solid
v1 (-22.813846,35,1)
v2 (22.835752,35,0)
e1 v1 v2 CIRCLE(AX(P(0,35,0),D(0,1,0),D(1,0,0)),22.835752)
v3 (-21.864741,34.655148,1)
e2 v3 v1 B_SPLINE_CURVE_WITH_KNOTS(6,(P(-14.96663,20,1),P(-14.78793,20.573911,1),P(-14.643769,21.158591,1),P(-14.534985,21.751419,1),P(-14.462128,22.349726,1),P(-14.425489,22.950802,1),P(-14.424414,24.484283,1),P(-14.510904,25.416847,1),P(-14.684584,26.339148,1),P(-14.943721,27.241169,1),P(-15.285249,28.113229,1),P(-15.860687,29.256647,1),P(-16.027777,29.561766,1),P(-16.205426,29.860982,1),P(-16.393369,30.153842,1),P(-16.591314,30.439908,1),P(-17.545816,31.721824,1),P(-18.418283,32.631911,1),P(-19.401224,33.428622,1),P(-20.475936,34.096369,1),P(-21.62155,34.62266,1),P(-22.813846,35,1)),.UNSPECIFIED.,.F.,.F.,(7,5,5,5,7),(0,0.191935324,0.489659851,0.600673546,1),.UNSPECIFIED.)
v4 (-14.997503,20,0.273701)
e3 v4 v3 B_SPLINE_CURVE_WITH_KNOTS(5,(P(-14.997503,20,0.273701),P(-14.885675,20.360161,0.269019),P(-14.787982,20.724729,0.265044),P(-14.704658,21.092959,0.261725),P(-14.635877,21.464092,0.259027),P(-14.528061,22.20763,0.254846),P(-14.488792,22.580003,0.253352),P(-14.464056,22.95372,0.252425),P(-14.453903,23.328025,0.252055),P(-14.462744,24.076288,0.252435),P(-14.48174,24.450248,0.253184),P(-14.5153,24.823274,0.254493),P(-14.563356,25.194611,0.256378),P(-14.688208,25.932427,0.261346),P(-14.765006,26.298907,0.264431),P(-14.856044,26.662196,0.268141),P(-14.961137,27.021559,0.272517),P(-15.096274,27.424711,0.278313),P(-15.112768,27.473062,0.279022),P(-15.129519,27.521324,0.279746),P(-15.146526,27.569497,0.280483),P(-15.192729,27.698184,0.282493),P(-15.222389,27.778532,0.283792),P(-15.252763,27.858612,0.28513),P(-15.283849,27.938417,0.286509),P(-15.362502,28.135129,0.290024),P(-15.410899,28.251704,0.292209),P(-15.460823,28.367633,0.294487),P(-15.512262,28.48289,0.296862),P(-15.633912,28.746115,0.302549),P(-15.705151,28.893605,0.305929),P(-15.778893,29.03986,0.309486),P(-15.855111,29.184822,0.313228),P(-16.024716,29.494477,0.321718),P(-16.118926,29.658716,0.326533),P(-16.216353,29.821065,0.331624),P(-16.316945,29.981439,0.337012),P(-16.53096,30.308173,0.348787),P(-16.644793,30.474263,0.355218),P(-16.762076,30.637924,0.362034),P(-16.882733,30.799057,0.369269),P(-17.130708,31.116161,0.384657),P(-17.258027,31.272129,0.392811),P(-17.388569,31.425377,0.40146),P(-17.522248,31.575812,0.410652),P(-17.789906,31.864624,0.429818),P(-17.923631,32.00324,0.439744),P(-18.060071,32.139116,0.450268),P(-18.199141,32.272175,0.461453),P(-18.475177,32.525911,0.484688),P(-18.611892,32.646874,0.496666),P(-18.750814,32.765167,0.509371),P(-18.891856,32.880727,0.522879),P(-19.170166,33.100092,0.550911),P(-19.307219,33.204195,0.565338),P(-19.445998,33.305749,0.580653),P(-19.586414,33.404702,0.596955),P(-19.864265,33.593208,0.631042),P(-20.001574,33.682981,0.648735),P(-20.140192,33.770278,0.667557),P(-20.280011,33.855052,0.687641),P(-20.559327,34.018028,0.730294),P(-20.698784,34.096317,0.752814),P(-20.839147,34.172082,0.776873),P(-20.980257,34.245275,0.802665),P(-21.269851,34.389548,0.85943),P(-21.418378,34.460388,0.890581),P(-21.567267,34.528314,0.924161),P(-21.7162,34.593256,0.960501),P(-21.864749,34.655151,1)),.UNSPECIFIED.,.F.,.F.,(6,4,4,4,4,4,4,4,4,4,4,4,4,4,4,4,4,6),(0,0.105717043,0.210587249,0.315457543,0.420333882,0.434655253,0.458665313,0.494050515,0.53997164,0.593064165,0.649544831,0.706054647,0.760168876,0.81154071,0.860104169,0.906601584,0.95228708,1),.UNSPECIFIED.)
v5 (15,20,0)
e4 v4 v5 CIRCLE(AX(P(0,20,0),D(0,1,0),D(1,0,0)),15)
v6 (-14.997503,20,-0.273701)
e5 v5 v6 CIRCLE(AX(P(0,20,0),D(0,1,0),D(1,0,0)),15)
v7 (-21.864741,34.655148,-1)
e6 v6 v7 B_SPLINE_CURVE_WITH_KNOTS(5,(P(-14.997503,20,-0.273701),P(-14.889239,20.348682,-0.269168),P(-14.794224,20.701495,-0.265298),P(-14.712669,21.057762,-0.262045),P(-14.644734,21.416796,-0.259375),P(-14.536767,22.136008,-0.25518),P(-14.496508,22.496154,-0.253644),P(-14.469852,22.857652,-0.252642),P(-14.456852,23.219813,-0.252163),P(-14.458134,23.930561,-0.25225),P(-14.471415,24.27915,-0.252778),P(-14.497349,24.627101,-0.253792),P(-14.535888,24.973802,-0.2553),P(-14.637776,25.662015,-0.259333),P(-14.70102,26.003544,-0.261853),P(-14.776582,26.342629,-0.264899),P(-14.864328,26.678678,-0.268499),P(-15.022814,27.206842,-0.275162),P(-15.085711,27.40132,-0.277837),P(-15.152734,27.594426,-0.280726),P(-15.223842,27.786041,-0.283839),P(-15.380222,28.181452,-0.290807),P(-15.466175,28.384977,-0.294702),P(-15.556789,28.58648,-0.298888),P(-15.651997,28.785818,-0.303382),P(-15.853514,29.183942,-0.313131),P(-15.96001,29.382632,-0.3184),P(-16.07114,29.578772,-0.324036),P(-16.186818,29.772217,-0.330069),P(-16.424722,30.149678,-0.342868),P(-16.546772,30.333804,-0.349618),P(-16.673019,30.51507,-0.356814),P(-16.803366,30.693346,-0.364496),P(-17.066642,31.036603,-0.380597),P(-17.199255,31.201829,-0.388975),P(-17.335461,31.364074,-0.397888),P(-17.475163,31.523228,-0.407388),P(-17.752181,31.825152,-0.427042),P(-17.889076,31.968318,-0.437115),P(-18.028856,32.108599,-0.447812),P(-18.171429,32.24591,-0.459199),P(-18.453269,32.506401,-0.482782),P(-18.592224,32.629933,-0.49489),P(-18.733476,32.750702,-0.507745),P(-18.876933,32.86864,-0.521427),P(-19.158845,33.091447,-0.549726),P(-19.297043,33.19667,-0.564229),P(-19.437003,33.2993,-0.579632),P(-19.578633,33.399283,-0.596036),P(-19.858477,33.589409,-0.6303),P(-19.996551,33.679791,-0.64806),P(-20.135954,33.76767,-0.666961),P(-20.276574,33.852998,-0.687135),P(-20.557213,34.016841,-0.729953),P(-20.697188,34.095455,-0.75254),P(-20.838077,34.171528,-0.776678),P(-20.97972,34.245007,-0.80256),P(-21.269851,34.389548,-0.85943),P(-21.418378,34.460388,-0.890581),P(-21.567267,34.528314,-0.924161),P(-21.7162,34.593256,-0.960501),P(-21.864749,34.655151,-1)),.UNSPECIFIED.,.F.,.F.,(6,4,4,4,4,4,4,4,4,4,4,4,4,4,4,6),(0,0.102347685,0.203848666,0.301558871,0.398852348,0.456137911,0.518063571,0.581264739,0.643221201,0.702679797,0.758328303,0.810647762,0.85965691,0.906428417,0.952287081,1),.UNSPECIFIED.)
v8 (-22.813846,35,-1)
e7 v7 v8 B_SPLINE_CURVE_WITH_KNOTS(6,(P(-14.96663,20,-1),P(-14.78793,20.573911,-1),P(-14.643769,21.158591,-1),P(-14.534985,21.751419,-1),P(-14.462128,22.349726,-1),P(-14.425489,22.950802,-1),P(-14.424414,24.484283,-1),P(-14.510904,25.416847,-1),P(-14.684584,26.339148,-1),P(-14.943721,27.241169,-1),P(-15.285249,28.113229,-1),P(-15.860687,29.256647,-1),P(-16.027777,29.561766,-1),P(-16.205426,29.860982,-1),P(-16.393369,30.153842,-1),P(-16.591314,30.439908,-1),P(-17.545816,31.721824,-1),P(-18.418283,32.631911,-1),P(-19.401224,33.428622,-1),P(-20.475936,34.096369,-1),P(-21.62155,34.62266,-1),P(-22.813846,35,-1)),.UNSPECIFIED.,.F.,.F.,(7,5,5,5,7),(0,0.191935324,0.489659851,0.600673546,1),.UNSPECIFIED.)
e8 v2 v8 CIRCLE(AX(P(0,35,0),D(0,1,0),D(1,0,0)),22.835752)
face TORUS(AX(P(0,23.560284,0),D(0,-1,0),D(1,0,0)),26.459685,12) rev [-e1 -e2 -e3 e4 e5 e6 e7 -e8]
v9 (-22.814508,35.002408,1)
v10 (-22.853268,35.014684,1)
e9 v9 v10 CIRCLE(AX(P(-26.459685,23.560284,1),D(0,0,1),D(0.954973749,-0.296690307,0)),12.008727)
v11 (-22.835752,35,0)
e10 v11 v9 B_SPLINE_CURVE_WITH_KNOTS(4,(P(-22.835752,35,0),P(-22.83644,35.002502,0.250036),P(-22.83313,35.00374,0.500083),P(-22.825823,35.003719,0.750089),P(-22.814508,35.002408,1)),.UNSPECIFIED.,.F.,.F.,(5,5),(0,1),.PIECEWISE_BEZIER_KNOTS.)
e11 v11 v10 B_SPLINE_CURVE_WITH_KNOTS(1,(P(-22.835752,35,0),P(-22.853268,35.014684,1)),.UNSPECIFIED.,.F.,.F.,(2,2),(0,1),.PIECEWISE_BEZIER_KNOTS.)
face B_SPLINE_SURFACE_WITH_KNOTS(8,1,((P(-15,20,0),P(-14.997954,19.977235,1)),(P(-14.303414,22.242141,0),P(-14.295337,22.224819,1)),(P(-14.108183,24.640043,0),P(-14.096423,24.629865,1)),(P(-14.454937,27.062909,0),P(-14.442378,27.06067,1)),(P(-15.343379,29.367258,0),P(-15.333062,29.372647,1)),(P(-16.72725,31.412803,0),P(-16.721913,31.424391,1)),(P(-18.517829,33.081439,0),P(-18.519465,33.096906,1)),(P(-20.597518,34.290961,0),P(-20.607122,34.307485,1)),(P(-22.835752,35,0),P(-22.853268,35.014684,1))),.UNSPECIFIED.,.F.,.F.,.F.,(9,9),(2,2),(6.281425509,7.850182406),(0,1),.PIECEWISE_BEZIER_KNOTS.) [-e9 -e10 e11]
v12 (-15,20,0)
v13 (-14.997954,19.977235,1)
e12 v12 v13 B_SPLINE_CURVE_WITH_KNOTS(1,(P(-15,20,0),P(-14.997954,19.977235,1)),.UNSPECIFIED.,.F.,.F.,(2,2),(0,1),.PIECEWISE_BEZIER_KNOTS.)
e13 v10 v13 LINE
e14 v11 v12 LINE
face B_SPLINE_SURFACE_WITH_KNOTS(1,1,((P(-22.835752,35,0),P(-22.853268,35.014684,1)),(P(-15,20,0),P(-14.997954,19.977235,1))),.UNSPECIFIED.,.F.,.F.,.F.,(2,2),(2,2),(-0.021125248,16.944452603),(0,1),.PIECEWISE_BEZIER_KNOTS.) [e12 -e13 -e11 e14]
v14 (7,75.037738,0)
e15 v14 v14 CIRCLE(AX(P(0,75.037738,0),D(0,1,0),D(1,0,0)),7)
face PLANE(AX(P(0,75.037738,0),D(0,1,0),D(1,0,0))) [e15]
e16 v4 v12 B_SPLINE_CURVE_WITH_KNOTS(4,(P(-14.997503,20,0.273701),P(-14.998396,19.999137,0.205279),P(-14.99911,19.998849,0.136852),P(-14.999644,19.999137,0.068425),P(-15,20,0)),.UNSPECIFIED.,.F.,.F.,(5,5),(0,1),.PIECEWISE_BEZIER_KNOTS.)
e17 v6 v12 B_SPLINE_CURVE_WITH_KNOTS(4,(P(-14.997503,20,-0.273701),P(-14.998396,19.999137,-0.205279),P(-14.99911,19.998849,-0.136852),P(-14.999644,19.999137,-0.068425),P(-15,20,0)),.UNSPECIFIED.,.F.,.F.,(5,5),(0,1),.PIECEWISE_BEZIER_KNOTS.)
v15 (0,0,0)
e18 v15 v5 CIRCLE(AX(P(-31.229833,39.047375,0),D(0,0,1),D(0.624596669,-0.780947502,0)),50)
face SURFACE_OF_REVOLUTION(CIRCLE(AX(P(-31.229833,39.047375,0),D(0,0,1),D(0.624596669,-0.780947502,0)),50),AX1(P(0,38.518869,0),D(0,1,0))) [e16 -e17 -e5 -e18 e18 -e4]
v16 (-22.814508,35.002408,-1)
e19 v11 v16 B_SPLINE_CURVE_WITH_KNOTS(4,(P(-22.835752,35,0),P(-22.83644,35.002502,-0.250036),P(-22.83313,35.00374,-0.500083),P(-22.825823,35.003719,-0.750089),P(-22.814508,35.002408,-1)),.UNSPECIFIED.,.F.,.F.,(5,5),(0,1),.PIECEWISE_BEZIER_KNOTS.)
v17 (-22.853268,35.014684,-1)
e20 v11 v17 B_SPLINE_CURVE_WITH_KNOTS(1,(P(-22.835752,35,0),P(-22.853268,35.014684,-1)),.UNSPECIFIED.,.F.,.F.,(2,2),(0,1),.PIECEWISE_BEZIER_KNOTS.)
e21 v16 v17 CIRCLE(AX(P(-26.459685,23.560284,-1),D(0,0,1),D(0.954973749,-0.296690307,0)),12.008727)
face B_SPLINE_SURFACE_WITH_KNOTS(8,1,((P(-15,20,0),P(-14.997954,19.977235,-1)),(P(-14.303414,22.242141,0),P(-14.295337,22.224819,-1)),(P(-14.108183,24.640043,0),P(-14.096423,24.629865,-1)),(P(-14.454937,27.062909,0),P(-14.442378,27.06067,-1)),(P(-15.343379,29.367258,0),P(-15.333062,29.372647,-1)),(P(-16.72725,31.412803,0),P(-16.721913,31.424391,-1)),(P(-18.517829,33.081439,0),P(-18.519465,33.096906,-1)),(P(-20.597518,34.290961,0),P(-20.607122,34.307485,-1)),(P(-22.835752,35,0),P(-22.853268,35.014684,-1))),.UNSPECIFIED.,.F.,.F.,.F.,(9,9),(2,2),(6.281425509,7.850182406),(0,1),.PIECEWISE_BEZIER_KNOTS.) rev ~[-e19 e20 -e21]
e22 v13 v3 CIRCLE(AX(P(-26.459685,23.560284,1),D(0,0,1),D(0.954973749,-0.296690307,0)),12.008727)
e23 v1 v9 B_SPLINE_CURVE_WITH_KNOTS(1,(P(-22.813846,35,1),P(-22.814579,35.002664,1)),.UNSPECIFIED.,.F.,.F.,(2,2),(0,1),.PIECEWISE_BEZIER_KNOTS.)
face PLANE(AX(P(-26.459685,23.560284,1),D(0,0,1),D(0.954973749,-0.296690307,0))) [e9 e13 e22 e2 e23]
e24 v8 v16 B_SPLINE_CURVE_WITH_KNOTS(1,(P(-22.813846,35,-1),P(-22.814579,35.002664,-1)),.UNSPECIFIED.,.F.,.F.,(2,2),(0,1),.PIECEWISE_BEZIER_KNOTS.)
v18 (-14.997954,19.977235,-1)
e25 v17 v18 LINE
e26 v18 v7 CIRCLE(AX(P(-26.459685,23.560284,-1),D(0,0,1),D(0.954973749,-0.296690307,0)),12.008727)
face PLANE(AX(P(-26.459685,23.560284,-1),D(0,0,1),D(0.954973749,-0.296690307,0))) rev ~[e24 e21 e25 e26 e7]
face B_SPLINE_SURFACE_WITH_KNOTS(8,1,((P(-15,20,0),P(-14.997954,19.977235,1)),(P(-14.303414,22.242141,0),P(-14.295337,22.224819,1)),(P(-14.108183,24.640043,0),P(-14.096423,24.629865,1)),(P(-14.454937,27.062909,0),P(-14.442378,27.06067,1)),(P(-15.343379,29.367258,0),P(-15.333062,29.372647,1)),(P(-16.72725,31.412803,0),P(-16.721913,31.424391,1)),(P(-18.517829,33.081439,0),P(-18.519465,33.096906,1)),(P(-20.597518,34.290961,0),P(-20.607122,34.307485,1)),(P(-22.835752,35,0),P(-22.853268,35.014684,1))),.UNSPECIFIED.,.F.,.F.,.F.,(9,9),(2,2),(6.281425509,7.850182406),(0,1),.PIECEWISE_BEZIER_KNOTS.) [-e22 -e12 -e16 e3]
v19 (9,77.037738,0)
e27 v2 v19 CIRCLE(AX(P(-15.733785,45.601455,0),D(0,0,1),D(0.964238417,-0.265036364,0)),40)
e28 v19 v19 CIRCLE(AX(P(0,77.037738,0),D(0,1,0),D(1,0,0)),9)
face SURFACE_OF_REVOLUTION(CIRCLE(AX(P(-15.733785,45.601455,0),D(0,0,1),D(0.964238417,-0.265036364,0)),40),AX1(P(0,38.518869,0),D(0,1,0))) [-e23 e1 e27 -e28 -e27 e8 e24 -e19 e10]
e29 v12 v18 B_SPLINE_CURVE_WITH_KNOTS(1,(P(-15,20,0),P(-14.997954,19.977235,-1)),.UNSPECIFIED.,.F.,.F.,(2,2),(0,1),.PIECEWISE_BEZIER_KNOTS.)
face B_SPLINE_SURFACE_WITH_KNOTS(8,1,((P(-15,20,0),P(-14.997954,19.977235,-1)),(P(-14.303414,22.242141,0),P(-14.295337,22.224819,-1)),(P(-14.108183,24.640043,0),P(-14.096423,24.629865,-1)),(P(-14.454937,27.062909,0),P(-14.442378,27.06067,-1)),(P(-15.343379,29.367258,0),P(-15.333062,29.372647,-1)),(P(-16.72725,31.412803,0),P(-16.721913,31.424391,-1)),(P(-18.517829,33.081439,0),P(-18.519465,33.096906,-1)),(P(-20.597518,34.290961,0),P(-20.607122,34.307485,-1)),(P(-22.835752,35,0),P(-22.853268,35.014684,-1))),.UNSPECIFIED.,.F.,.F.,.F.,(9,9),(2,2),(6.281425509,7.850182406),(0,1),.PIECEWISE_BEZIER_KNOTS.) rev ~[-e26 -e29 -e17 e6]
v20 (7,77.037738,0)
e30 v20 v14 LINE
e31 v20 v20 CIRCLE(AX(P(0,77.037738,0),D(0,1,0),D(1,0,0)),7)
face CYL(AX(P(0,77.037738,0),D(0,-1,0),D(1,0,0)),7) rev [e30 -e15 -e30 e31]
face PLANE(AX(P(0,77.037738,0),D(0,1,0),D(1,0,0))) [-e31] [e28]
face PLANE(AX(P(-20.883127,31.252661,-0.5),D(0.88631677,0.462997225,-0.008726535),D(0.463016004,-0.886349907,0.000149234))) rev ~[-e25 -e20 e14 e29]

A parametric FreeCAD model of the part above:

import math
import FreeCAD as App
import Part
import Sketcher

doc = App.newDocument("Part")
body = doc.addObject("PartDesign::Body", "Body")

# Sketch on XY plane
sketch1 = doc.addObject("Sketcher::SketchObject", "Sketch")
body.addObject(sketch1)
sketch1.AttachmentSupport = (doc.XY_Plane, [""])
sketch1.MapMode = "FlatFace"
sketch1.addGeometry(Part.ArcOfCircle(Part.Circle(App.Vector(-31.229833, 39.047375, 0), App.Vector(0, 0, 1), 50), math.radians(-51.34741), math.radians(-22.392385)), False)
sketch1.addGeometry(Part.ArcOfCircle(Part.Circle(App.Vector(26.459685, 23.560284, 0), App.Vector(0, 0, 1), 12), math.radians(107.577432), math.radians(197.258923)), False)
sketch1.addGeometry(Part.ArcOfCircle(Part.Circle(App.Vector(-15.733785, 45.601455, 0), App.Vector(0, 0, 1), 40), math.radians(-15.369114), math.radians(51.80465)), False)
sketch1.addGeometry(Part.LineSegment(App.Vector(9, 77.037738, 0), App.Vector(7, 77.037738, 0)), False)
sketch1.addGeometry(Part.LineSegment(App.Vector(7, 77.037738, 0), App.Vector(7, 75.037738, 0)), False)
sketch1.addGeometry(Part.LineSegment(App.Vector(7, 75.037738, 0), App.Vector(0, 75.037738, 0)), False)
sketch1.addGeometry(Part.LineSegment(App.Vector(0, 75.037738, 0), App.Vector(0, 0, 0)), False)
sketch1.addConstraint(Sketcher.Constraint("Coincident", 0, 2, 1, 2))
sketch1.addConstraint(Sketcher.Constraint("Coincident", 1, 1, 2, 1))
sketch1.addConstraint(Sketcher.Constraint("Coincident", 2, 2, 3, 1))
sketch1.addConstraint(Sketcher.Constraint("Coincident", 3, 2, 4, 1))
sketch1.addConstraint(Sketcher.Constraint("Coincident", 4, 2, 5, 1))
sketch1.addConstraint(Sketcher.Constraint("Coincident", 5, 2, 6, 1))
sketch1.addConstraint(Sketcher.Constraint("Coincident", 6, 2, 0, 1))
sketch1.addConstraint(Sketcher.Constraint("Horizontal", 3))
sketch1.addConstraint(Sketcher.Constraint("Vertical", 4))
sketch1.addConstraint(Sketcher.Constraint("Horizontal", 5))
sketch1.addConstraint(Sketcher.Constraint("Vertical", 6))
sketch1.addConstraint(Sketcher.Constraint("Coincident", 6, 2, -1, 1))
sketch1.addConstraint(Sketcher.Constraint("Equal", 3, 4))
sketch1.addConstraint(Sketcher.Constraint("Radius", 0, 50.0))
sketch1.addConstraint(Sketcher.Constraint("Radius", 1, 12.0))
sketch1.addConstraint(Sketcher.Constraint("Radius", 2, 40.0))
sketch1.addConstraint(Sketcher.Constraint("DistanceX", 3, 2, 3, 1, 2.0))
sketch1.addConstraint(Sketcher.Constraint("DistanceX", 5, 2, 5, 1, 7.0))
sketch1.addConstraint(Sketcher.Constraint("DistanceX", -1, 1, 0, 2, 15.0))
sketch1.addConstraint(Sketcher.Constraint("DistanceY", -1, 1, 0, 2, 20.0))
sketch1.addConstraint(Sketcher.Constraint("DistanceY", -1, 1, 1, 1, 35.0))
sketch1.addConstraint(Sketcher.Constraint("DistanceY", 6, 2, 6, 1, 75.037738))
sketch1.addConstraint(Sketcher.Constraint("DistanceX", -1, 1, 1, 1, 22.835752))
revolution = doc.addObject("PartDesign::Revolution", "Revolution")
body.addObject(revolution)
revolution.Profile = sketch1
revolution.ReferenceAxis = (sketch1, ["V_Axis"])
revolution.Angle = 360

# Sketch on XY plane
sketch2 = doc.addObject("Sketcher::SketchObject", "Sketch001")
body.addObject(sketch2)
sketch2.AttachmentSupport = (doc.XY_Plane, [""])
sketch2.MapMode = "FlatFace"
sketch2.addGeometry(Part.ArcOfCircle(Part.Circle(App.Vector(-26.459685, 23.560284, 0), App.Vector(0, 0, 1), 12), math.radians(-17.258923), math.radians(72.422568)), False)
sketch2.addGeometry(Part.LineSegment(App.Vector(-22.835752, 35, 0), App.Vector(-15, 20, 0)), False)
sketch2.addConstraint(Sketcher.Constraint("Coincident", 0, 1, 1, 2))
sketch2.addConstraint(Sketcher.Constraint("Coincident", 1, 1, 0, 2))
sketch2.addConstraint(Sketcher.Constraint("Radius", 0, 12.0))
sketch2.addConstraint(Sketcher.Constraint("DistanceX", 0, 1, -1, 1, 15.0))
sketch2.addConstraint(Sketcher.Constraint("DistanceY", -1, 1, 0, 1, 20.0))
sketch2.addConstraint(Sketcher.Constraint("DistanceY", -1, 1, 1, 1, 35.0))
sketch2.addConstraint(Sketcher.Constraint("DistanceX", 1, 1, -1, 1, 22.835752))
pad1 = doc.addObject("PartDesign::Pad", "Pad")
body.addObject(pad1)
pad1.Profile = sketch2
pad1.Length = 2
pad1.Midplane = True
pad1.TaperAngle = 0.5
body2 = doc.addObject("PartDesign::Body", "Body001")

# Sketch on XY plane
sketch3 = doc.addObject("Sketcher::SketchObject", "Sketch002")
body2.addObject(sketch3)
sketch3.AttachmentSupport = (doc.getObject("XY_Plane001"), [""])
sketch3.MapMode = "FlatFace"
sketch3.addGeometry(Part.LineSegment(App.Vector(-22.835752, 35, 0), App.Vector(-15, 20, 0)), False)
sketch3.addGeometry(Part.ArcOfCircle(Part.Circle(App.Vector(-26.459685, 23.560284, 0), App.Vector(0, 0, 1), 12), math.radians(-17.258923), math.radians(72.422568)), False)
sketch3.addConstraint(Sketcher.Constraint("Coincident", 0, 1, 1, 2))
sketch3.addConstraint(Sketcher.Constraint("Coincident", 1, 1, 0, 2))
sketch3.addConstraint(Sketcher.Constraint("Radius", 1, 12.0))
sketch3.addConstraint(Sketcher.Constraint("DistanceY", -1, 1, 0, 1, 35.0))
sketch3.addConstraint(Sketcher.Constraint("DistanceX", 1, 1, -1, 1, 15.0))
sketch3.addConstraint(Sketcher.Constraint("DistanceY", -1, 1, 1, 1, 20.0))
sketch3.addConstraint(Sketcher.Constraint("DistanceX", 0, 1, -1, 1, 22.835752))
pad2 = doc.addObject("PartDesign::Pad", "Pad001")
body2.addObject(pad2)
pad2.Profile = sketch3
pad2.Length = 25

doc.recompute()
